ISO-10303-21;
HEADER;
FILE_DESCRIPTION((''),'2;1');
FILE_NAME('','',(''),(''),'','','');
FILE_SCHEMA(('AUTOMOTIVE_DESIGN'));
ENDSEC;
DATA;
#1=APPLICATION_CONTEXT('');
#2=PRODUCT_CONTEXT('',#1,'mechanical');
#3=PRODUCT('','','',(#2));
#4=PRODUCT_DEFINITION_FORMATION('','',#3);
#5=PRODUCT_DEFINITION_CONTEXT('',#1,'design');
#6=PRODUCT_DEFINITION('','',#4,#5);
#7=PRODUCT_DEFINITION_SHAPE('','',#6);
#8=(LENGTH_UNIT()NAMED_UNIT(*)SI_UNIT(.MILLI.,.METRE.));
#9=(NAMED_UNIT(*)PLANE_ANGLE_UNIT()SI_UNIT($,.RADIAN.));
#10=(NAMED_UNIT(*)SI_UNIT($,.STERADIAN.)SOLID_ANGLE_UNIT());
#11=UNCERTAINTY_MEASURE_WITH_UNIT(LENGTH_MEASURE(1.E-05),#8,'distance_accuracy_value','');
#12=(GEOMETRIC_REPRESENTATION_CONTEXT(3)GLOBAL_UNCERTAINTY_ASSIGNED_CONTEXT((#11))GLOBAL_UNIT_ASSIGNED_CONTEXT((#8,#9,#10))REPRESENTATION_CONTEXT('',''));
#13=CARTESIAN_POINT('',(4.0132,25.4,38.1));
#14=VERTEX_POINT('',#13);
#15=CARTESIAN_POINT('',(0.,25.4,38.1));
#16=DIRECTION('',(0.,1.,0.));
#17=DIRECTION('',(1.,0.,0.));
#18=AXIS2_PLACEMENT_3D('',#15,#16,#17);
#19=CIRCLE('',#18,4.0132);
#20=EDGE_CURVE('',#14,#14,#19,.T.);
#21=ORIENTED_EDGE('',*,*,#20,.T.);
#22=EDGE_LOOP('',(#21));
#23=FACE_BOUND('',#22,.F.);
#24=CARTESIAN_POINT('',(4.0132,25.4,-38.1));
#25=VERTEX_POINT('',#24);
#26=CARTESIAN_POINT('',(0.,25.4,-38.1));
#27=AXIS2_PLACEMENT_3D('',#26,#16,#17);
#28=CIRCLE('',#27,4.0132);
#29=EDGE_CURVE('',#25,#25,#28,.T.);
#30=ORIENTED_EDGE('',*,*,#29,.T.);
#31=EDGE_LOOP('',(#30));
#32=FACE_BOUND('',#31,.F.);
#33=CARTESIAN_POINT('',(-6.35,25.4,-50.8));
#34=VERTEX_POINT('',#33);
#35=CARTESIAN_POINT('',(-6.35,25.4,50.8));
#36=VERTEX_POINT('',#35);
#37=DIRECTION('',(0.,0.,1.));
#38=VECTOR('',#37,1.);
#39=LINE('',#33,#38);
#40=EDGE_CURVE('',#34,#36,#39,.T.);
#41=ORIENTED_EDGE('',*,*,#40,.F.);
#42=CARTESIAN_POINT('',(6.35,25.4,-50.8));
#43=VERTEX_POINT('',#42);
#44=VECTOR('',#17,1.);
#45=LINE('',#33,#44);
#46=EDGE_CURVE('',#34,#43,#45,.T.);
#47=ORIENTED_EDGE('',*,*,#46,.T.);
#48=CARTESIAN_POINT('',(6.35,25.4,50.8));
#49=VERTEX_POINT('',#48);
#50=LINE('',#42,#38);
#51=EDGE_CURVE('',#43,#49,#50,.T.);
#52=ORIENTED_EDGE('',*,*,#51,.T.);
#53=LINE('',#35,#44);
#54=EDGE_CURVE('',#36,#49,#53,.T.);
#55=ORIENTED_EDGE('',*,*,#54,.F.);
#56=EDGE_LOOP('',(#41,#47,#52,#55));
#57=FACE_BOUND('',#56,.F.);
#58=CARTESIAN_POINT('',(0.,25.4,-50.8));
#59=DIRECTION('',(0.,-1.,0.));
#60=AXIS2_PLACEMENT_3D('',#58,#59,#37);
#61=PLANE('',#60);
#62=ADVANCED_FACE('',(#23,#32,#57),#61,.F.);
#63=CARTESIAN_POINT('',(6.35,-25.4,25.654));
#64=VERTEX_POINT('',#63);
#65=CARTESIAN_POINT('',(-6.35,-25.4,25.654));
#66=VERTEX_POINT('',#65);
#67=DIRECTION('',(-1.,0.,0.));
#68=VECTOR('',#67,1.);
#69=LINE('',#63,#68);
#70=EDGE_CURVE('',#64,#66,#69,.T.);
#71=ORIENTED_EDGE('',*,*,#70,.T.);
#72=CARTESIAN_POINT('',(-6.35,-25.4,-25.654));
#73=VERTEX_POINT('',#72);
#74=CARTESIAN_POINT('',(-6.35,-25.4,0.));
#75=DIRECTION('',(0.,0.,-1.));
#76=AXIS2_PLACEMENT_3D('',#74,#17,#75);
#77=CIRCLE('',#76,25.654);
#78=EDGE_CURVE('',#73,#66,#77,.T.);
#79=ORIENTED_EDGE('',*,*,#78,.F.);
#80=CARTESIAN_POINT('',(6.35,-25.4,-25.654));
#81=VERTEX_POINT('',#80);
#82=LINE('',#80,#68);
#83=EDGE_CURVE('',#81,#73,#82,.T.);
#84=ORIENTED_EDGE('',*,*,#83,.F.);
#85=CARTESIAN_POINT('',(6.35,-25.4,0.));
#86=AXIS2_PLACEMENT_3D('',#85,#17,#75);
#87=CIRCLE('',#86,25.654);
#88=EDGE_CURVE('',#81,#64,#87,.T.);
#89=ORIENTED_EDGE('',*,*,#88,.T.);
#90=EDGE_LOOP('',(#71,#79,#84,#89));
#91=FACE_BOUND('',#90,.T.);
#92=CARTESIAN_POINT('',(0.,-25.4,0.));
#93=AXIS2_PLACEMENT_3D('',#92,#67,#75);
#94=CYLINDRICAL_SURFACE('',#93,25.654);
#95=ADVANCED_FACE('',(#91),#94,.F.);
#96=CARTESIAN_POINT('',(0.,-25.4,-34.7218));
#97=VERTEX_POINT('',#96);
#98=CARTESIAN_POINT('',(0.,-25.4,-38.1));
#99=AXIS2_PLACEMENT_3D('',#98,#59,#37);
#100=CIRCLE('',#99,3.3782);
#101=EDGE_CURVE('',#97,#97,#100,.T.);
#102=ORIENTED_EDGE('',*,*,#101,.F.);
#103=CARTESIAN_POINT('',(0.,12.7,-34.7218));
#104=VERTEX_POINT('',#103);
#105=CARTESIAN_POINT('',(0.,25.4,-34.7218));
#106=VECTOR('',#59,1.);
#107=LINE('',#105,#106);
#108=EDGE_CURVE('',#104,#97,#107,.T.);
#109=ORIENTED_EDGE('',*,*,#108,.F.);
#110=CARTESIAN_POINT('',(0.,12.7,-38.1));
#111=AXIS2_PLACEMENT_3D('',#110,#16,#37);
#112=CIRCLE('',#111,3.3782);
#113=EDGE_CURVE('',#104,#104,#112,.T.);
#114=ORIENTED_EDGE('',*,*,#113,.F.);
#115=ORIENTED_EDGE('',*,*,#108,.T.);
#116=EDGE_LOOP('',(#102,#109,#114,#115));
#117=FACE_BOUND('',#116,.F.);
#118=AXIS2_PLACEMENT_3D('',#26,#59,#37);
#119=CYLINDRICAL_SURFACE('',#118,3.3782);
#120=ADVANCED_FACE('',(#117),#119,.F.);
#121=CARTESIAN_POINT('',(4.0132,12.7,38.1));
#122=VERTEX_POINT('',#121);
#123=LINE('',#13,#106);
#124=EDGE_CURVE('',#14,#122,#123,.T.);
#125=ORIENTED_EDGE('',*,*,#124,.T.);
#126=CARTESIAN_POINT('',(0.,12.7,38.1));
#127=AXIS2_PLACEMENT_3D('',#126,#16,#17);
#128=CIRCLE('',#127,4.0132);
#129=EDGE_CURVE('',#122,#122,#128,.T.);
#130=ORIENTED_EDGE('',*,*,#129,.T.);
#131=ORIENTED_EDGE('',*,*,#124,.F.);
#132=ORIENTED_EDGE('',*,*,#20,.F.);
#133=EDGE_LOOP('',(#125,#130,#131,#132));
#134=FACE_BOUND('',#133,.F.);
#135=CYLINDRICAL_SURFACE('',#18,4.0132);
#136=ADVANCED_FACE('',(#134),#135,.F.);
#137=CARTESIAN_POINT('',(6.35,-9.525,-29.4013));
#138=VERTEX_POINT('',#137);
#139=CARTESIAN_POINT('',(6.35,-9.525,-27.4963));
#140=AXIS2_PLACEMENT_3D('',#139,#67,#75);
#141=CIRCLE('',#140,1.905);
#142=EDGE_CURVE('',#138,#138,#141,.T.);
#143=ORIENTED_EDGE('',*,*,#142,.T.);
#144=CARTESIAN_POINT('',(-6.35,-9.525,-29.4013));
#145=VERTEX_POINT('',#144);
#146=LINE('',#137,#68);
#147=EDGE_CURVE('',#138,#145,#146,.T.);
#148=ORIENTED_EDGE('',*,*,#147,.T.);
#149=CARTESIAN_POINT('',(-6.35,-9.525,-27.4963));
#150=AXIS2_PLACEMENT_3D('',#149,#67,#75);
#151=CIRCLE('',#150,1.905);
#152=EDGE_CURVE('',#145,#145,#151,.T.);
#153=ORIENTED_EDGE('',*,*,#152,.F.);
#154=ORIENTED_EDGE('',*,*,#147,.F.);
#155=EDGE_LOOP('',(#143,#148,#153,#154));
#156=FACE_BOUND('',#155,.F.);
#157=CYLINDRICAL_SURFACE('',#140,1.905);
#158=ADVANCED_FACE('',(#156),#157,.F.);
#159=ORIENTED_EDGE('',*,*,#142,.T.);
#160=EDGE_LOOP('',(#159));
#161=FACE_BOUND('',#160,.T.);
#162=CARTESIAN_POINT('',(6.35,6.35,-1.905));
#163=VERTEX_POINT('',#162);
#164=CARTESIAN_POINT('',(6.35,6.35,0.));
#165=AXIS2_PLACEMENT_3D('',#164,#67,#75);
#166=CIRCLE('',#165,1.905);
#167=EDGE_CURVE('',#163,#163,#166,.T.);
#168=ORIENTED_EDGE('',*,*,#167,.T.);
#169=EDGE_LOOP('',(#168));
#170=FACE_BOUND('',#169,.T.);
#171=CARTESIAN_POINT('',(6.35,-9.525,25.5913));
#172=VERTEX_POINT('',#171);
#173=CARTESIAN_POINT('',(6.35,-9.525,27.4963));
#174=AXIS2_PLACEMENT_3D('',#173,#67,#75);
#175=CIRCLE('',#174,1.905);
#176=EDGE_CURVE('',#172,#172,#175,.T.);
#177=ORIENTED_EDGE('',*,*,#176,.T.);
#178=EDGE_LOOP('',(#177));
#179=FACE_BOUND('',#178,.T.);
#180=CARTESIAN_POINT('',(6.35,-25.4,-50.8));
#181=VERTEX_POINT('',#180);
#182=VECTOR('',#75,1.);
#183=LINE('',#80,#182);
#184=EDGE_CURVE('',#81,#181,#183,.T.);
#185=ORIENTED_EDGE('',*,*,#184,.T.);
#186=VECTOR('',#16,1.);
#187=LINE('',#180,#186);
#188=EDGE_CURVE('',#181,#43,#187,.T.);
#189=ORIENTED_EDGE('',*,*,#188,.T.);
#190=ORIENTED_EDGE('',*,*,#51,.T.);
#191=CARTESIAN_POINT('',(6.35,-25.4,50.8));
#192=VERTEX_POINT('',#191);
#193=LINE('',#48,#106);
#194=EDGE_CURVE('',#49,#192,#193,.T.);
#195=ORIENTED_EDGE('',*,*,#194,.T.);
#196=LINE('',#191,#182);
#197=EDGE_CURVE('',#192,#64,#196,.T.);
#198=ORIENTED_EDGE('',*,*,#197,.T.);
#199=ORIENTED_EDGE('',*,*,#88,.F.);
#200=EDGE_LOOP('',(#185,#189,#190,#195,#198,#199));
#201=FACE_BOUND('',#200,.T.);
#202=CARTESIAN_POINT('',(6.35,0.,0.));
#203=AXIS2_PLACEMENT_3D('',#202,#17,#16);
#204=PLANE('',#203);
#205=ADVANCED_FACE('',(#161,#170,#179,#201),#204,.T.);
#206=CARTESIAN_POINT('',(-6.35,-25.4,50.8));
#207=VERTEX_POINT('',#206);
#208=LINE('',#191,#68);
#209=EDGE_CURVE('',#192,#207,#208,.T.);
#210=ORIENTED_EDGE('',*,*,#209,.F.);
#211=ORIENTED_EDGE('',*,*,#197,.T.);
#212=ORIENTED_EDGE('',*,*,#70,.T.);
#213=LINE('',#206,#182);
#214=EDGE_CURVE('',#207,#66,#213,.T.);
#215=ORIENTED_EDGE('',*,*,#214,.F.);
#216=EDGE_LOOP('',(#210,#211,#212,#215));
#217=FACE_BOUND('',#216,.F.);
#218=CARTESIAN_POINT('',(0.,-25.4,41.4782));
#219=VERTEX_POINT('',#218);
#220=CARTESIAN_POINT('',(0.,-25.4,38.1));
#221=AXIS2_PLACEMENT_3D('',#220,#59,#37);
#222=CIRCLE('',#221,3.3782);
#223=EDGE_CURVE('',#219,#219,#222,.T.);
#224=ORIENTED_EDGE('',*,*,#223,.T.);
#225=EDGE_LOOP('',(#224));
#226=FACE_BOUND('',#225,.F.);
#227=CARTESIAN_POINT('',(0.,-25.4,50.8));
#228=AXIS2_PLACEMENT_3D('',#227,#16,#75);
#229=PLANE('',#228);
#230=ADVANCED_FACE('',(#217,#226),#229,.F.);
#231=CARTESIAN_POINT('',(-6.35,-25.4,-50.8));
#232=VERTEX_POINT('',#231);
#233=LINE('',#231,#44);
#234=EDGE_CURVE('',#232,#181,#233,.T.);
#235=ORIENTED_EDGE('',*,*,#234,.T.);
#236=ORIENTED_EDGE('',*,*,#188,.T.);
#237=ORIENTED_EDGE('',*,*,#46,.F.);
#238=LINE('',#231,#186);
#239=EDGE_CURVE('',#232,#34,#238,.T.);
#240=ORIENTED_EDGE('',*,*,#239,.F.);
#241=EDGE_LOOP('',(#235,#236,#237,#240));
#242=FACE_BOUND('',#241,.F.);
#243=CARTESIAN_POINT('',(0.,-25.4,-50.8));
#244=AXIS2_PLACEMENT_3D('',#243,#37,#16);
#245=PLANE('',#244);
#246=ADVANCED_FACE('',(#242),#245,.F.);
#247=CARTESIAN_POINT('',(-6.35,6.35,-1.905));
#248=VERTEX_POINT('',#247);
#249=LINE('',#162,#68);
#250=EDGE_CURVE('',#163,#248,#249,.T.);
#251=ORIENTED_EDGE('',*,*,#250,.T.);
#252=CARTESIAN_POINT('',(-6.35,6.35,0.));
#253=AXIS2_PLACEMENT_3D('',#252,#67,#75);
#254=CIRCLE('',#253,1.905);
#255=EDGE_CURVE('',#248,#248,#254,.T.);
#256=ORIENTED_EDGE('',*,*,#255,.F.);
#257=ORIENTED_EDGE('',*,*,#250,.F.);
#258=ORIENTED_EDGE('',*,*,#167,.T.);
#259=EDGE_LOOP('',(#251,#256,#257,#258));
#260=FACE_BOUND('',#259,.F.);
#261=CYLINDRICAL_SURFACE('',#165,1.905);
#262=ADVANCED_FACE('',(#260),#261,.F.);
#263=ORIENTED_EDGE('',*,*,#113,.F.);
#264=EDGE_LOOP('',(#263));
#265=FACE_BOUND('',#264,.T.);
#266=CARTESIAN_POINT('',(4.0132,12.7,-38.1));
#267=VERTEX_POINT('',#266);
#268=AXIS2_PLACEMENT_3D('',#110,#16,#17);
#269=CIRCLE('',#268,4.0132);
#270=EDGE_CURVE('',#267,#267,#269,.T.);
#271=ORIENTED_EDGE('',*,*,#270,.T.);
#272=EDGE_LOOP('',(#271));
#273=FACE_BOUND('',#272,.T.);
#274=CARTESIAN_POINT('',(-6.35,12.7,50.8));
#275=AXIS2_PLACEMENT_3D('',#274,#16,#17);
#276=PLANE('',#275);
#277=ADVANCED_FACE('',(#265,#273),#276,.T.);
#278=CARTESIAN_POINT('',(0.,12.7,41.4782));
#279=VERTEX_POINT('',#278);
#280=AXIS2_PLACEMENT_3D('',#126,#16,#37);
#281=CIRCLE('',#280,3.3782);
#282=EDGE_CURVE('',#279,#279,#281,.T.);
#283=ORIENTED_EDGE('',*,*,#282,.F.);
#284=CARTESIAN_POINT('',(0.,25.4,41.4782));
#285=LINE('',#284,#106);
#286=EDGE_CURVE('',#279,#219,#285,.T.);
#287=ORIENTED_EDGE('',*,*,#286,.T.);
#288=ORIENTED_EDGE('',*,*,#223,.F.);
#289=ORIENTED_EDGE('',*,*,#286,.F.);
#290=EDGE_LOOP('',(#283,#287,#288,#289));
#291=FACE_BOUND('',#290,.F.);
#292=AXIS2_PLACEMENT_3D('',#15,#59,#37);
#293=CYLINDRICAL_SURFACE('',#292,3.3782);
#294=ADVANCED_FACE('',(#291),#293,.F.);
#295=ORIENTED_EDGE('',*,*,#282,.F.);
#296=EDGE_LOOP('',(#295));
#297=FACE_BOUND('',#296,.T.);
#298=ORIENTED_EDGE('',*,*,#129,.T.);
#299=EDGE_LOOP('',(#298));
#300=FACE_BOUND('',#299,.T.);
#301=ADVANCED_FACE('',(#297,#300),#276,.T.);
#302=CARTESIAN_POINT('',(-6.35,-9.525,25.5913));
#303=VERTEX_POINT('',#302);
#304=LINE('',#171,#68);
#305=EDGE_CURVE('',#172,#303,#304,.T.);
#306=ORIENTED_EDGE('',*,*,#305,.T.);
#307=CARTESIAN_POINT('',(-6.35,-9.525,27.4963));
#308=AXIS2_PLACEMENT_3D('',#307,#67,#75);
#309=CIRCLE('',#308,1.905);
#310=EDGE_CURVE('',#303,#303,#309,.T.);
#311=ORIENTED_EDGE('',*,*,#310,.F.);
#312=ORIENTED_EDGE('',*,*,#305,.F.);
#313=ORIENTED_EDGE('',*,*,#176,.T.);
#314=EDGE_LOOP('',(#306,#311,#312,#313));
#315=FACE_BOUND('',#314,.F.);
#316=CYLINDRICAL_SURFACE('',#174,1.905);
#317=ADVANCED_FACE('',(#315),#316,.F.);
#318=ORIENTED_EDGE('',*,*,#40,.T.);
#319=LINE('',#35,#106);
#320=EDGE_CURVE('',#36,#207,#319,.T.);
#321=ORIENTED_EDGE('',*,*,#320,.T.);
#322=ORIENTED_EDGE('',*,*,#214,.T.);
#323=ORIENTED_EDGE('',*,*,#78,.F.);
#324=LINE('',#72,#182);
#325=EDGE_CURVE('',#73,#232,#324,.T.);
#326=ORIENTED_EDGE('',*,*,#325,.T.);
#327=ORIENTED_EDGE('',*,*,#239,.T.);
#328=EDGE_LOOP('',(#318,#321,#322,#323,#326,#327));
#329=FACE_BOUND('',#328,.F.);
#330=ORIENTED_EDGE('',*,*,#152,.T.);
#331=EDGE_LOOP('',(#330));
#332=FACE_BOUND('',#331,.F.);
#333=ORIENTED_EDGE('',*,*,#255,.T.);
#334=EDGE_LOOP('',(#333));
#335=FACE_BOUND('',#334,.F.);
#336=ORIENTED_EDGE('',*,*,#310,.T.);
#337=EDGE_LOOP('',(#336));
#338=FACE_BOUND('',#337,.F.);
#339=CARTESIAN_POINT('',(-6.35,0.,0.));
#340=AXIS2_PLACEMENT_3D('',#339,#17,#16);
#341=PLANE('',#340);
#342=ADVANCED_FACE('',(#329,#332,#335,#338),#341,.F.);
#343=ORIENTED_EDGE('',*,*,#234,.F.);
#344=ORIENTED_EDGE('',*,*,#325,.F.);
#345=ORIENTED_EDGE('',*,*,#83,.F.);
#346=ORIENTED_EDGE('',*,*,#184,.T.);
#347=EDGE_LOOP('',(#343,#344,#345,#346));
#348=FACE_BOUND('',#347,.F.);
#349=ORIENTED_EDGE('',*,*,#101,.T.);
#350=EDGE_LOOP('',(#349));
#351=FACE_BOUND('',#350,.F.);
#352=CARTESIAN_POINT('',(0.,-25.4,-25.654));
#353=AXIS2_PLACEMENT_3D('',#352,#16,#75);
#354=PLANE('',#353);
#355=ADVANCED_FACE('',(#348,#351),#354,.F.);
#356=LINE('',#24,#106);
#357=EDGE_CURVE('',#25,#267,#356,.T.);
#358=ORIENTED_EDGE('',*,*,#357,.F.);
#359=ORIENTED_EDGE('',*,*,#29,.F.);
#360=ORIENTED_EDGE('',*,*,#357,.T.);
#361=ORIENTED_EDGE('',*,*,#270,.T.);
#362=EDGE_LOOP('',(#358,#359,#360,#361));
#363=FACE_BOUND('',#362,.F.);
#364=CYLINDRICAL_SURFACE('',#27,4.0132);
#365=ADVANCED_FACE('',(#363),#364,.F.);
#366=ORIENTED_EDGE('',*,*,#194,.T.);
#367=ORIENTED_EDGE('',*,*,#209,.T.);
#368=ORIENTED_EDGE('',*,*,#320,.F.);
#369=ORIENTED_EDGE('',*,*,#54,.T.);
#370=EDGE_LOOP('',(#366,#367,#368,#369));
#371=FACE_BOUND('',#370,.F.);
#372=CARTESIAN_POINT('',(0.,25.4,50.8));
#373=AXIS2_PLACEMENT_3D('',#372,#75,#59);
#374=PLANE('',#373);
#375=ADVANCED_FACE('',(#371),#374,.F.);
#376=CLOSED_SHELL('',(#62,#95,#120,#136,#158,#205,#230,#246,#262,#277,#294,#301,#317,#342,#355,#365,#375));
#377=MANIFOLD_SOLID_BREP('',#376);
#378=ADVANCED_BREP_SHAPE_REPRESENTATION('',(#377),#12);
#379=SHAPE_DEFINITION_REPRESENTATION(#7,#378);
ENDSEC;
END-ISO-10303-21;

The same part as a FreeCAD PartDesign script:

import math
import FreeCAD as App
import Part
import Sketcher

V = App.Vector
Q = App.Units.Quantity

doc = App.newDocument("Part")
body = doc.addObject("PartDesign::Body", "Body")

sketch1 = body.newObject("Sketcher::SketchObject", "Sketch")
sketch1.AttachmentSupport = (doc.getObject("YZ_Plane"), [""])
sketch1.MapMode = "FlatFace"
sketch1.addGeometry(Part.LineSegment(V(-25.4, -25.654, 0), V(-25.4, -50.8, 0)), False)
sketch1.addGeometry(Part.LineSegment(V(-25.4, -50.8, 0), V(25.4, -50.8, 0)), False)
sketch1.addGeometry(Part.LineSegment(V(25.4, -50.8, 0), V(25.4, 50.8, 0)), False)
sketch1.addGeometry(Part.LineSegment(V(25.4, 50.8, 0), V(-25.4, 50.8, 0)), False)
sketch1.addGeometry(Part.LineSegment(V(-25.4, 50.8, 0), V(-25.4, 25.654, 0)), False)
sketch1.addGeometry(Part.ArcOfCircle(Part.Circle(V(-25.4, 0, 0), V(0, 0, 1), 25.654), math.radians(-90), math.radians(90)), False)
sketch1.addConstraint(Sketcher.Constraint("Coincident", 0, 2, 1, 1))
sketch1.addConstraint(Sketcher.Constraint("Coincident", 1, 2, 2, 1))
sketch1.addConstraint(Sketcher.Constraint("Coincident", 2, 2, 3, 1))
sketch1.addConstraint(Sketcher.Constraint("Coincident", 3, 2, 4, 1))
sketch1.addConstraint(Sketcher.Constraint("Coincident", 4, 2, 5, 2))
sketch1.addConstraint(Sketcher.Constraint("Coincident", 5, 1, 0, 1))
sketch1.addConstraint(Sketcher.Constraint("Vertical", 0))
sketch1.addConstraint(Sketcher.Constraint("Horizontal", 1))
sketch1.addConstraint(Sketcher.Constraint("Vertical", 2))
sketch1.addConstraint(Sketcher.Constraint("Horizontal", 3))
sketch1.addConstraint(Sketcher.Constraint("Vertical", 4))
sketch1.addConstraint(Sketcher.Constraint("Symmetric", 0, 2, 2, 2, -1, 1))
sketch1.addConstraint(Sketcher.Constraint("Symmetric", 4, 2, 5, 1, -1))
sketch1.addConstraint(Sketcher.Constraint("Vertical", 5, 3, 0, 2))
sketch1.addConstraint(Sketcher.Constraint("DistanceX", 1, 1, 1, 2, Q("2 in")))
sketch1.addConstraint(Sketcher.Constraint("DistanceY", 2, 1, 2, 2, Q("4 in")))
sketch1.addConstraint(Sketcher.Constraint("Radius", 5, Q("1.01 in")))
pad1 = body.newObject("PartDesign::Pad", "Pad")
pad1.Profile = sketch1
pad1.Length = Q("0.5 in")
pad1.Midplane = True

sketch2 = body.newObject("Sketcher::SketchObject", "Sketch001")
sketch2.AttachmentSupport = (doc.getObject("YZ_Plane"), [""])
sketch2.MapMode = "FlatFace"
sketch2.AttachmentOffset = App.Placement(V(0, 0, 0.25 * 25.4), App.Rotation())
sketch2.addGeometry(Part.Circle(V(6.35, 0, 0), V(0, 0, 1), 1.905), False)
sketch2.addGeometry(Part.Circle(V(-9.525, 27.4963, 0), V(0, 0, 1), 1.905), False)
sketch2.addGeometry(Part.Circle(V(-41.275, 27.4963, 0), V(0, 0, 1), 1.905), False)
sketch2.addGeometry(Part.Circle(V(-57.15, 0, 0), V(0, 0, 1), 1.905), False)
sketch2.addGeometry(Part.Circle(V(-41.275, -27.4963, 0), V(0, 0, 1), 1.905), False)
sketch2.addGeometry(Part.Circle(V(-9.525, -27.4963, 0), V(0, 0, 1), 1.905), False)
sketch2.addConstraint(Sketcher.Constraint("Equal", 0, 1))
sketch2.addConstraint(Sketcher.Constraint("Equal", 1, 2))
sketch2.addConstraint(Sketcher.Constraint("Equal", 2, 3))
sketch2.addConstraint(Sketcher.Constraint("Equal", 3, 4))
sketch2.addConstraint(Sketcher.Constraint("Equal", 4, 5))
sketch2.addConstraint(Sketcher.Constraint("Symmetric", 2, 3, 4, 3, -1))
sketch2.addConstraint(Sketcher.Constraint("Symmetric", 1, 3, 5, 3, -1))
sketch2.addConstraint(Sketcher.Constraint("PointOnObject", 0, 3, -1))
sketch2.addConstraint(Sketcher.Constraint("PointOnObject", 3, 3, -1))
sketch2.addConstraint(Sketcher.Constraint("Horizontal", 1, 3, 2, 3))
sketch2.addConstraint(Sketcher.Constraint("Diameter", 0, Q("0.15 in")))
sketch2.addConstraint(Sketcher.Constraint("DistanceX", 3, 3, 0, 3, Q("2.5 in")))
sketch2.addConstraint(Sketcher.Constraint("DistanceX", -1, 1, 0, 3, Q("0.25 in")))
sketch2.addConstraint(Sketcher.Constraint("DistanceX", 2, 3, 1, 3, Q("1.25 in")))
sketch2.addConstraint(Sketcher.Constraint("DistanceX", 1, 3, -1, 1, Q("0.375 in")))
sketch2.addConstraint(Sketcher.Constraint("DistanceY", -1, 1, 1, 3, 27.4963))
doc.recompute()
hole = body.newObject("PartDesign::Hole", "Hole")
hole.Profile = sketch2
hole.ThreadType = "None"
hole.Diameter = Q("0.15 in")
hole.DepthType = "ThroughAll"

sketch3 = body.newObject("Sketcher::SketchObject", "Sketch002")
sketch3.AttachmentSupport = (doc.getObject("XZ_Plane"), [""])
sketch3.MapMode = "FlatFace"
sketch3.AttachmentOffset = App.Placement(V(0, 0, -1 * 25.4), App.Rotation())
sketch3.addGeometry(Part.Circle(V(0, 38.1, 0), V(0, 0, 1), 3.3782), False)
sketch3.addGeometry(Part.Circle(V(0, -38.1, 0), V(0, 0, 1), 3.3782), False)
sketch3.addConstraint(Sketcher.Constraint("Equal", 0, 1))
sketch3.addConstraint(Sketcher.Constraint("Symmetric", 0, 3, 1, 3, -1, 1))
sketch3.addConstraint(Sketcher.Constraint("PointOnObject", 0, 3, -2))
sketch3.addConstraint(Sketcher.Constraint("Diameter", 0, Q("0.266 in")))
sketch3.addConstraint(Sketcher.Constraint("DistanceY", 1, 3, 0, 3, Q("3 in")))
doc.recompute()
hole2 = body.newObject("PartDesign::Hole", "Hole001")
hole2.Profile = sketch3
hole2.ThreadType = "None"
hole2.Diameter = Q("0.266 in")
hole2.DepthType = "ThroughAll"
hole2.Reversed = True

sketch4 = body.newObject("Sketcher::SketchObject", "Sketch003")
sketch4.AttachmentSupport = (doc.getObject("XZ_Plane"), [""])
sketch4.MapMode = "FlatFace"
sketch4.AttachmentOffset = App.Placement(V(0, 0, -1 * 25.4), App.Rotation())
sketch4.addGeometry(Part.Circle(V(0, -38.1, 0), V(0, 0, 1), 4.0132), False)
sketch4.addGeometry(Part.Circle(V(0, -38.1, 0), V(0, 0, 1), 3.3782), False)
sketch4.addGeometry(Part.Circle(V(0, 38.1, 0), V(0, 0, 1), 4.0132), False)
sketch4.addGeometry(Part.Circle(V(0, 38.1, 0), V(0, 0, 1), 3.3782), False)
sketch4.addConstraint(Sketcher.Constraint("Coincident", 1, 3, 0, 3))
sketch4.addConstraint(Sketcher.Constraint("Coincident", 3, 3, 2, 3))
sketch4.addConstraint(Sketcher.Constraint("Equal", 0, 2))
sketch4.addConstraint(Sketcher.Constraint("Equal", 1, 3))
sketch4.addConstraint(Sketcher.Constraint("Symmetric", 0, 3, 2, 3, -1, 1))
sketch4.addConstraint(Sketcher.Constraint("PointOnObject", 0, 3, -2))
sketch4.addConstraint(Sketcher.Constraint("Diameter", 0, Q("0.316 in")))
sketch4.addConstraint(Sketcher.Constraint("Diameter", 1, Q("0.266 in")))
sketch4.addConstraint(Sketcher.Constraint("DistanceY", 0, 3, 2, 3, Q("3 in")))
pocket1 = body.newObject("PartDesign::Pocket", "Pocket")
pocket1.Profile = sketch4
pocket1.Length = Q("0.5 in")
pocket1.Reversed = True

doc.recompute()
